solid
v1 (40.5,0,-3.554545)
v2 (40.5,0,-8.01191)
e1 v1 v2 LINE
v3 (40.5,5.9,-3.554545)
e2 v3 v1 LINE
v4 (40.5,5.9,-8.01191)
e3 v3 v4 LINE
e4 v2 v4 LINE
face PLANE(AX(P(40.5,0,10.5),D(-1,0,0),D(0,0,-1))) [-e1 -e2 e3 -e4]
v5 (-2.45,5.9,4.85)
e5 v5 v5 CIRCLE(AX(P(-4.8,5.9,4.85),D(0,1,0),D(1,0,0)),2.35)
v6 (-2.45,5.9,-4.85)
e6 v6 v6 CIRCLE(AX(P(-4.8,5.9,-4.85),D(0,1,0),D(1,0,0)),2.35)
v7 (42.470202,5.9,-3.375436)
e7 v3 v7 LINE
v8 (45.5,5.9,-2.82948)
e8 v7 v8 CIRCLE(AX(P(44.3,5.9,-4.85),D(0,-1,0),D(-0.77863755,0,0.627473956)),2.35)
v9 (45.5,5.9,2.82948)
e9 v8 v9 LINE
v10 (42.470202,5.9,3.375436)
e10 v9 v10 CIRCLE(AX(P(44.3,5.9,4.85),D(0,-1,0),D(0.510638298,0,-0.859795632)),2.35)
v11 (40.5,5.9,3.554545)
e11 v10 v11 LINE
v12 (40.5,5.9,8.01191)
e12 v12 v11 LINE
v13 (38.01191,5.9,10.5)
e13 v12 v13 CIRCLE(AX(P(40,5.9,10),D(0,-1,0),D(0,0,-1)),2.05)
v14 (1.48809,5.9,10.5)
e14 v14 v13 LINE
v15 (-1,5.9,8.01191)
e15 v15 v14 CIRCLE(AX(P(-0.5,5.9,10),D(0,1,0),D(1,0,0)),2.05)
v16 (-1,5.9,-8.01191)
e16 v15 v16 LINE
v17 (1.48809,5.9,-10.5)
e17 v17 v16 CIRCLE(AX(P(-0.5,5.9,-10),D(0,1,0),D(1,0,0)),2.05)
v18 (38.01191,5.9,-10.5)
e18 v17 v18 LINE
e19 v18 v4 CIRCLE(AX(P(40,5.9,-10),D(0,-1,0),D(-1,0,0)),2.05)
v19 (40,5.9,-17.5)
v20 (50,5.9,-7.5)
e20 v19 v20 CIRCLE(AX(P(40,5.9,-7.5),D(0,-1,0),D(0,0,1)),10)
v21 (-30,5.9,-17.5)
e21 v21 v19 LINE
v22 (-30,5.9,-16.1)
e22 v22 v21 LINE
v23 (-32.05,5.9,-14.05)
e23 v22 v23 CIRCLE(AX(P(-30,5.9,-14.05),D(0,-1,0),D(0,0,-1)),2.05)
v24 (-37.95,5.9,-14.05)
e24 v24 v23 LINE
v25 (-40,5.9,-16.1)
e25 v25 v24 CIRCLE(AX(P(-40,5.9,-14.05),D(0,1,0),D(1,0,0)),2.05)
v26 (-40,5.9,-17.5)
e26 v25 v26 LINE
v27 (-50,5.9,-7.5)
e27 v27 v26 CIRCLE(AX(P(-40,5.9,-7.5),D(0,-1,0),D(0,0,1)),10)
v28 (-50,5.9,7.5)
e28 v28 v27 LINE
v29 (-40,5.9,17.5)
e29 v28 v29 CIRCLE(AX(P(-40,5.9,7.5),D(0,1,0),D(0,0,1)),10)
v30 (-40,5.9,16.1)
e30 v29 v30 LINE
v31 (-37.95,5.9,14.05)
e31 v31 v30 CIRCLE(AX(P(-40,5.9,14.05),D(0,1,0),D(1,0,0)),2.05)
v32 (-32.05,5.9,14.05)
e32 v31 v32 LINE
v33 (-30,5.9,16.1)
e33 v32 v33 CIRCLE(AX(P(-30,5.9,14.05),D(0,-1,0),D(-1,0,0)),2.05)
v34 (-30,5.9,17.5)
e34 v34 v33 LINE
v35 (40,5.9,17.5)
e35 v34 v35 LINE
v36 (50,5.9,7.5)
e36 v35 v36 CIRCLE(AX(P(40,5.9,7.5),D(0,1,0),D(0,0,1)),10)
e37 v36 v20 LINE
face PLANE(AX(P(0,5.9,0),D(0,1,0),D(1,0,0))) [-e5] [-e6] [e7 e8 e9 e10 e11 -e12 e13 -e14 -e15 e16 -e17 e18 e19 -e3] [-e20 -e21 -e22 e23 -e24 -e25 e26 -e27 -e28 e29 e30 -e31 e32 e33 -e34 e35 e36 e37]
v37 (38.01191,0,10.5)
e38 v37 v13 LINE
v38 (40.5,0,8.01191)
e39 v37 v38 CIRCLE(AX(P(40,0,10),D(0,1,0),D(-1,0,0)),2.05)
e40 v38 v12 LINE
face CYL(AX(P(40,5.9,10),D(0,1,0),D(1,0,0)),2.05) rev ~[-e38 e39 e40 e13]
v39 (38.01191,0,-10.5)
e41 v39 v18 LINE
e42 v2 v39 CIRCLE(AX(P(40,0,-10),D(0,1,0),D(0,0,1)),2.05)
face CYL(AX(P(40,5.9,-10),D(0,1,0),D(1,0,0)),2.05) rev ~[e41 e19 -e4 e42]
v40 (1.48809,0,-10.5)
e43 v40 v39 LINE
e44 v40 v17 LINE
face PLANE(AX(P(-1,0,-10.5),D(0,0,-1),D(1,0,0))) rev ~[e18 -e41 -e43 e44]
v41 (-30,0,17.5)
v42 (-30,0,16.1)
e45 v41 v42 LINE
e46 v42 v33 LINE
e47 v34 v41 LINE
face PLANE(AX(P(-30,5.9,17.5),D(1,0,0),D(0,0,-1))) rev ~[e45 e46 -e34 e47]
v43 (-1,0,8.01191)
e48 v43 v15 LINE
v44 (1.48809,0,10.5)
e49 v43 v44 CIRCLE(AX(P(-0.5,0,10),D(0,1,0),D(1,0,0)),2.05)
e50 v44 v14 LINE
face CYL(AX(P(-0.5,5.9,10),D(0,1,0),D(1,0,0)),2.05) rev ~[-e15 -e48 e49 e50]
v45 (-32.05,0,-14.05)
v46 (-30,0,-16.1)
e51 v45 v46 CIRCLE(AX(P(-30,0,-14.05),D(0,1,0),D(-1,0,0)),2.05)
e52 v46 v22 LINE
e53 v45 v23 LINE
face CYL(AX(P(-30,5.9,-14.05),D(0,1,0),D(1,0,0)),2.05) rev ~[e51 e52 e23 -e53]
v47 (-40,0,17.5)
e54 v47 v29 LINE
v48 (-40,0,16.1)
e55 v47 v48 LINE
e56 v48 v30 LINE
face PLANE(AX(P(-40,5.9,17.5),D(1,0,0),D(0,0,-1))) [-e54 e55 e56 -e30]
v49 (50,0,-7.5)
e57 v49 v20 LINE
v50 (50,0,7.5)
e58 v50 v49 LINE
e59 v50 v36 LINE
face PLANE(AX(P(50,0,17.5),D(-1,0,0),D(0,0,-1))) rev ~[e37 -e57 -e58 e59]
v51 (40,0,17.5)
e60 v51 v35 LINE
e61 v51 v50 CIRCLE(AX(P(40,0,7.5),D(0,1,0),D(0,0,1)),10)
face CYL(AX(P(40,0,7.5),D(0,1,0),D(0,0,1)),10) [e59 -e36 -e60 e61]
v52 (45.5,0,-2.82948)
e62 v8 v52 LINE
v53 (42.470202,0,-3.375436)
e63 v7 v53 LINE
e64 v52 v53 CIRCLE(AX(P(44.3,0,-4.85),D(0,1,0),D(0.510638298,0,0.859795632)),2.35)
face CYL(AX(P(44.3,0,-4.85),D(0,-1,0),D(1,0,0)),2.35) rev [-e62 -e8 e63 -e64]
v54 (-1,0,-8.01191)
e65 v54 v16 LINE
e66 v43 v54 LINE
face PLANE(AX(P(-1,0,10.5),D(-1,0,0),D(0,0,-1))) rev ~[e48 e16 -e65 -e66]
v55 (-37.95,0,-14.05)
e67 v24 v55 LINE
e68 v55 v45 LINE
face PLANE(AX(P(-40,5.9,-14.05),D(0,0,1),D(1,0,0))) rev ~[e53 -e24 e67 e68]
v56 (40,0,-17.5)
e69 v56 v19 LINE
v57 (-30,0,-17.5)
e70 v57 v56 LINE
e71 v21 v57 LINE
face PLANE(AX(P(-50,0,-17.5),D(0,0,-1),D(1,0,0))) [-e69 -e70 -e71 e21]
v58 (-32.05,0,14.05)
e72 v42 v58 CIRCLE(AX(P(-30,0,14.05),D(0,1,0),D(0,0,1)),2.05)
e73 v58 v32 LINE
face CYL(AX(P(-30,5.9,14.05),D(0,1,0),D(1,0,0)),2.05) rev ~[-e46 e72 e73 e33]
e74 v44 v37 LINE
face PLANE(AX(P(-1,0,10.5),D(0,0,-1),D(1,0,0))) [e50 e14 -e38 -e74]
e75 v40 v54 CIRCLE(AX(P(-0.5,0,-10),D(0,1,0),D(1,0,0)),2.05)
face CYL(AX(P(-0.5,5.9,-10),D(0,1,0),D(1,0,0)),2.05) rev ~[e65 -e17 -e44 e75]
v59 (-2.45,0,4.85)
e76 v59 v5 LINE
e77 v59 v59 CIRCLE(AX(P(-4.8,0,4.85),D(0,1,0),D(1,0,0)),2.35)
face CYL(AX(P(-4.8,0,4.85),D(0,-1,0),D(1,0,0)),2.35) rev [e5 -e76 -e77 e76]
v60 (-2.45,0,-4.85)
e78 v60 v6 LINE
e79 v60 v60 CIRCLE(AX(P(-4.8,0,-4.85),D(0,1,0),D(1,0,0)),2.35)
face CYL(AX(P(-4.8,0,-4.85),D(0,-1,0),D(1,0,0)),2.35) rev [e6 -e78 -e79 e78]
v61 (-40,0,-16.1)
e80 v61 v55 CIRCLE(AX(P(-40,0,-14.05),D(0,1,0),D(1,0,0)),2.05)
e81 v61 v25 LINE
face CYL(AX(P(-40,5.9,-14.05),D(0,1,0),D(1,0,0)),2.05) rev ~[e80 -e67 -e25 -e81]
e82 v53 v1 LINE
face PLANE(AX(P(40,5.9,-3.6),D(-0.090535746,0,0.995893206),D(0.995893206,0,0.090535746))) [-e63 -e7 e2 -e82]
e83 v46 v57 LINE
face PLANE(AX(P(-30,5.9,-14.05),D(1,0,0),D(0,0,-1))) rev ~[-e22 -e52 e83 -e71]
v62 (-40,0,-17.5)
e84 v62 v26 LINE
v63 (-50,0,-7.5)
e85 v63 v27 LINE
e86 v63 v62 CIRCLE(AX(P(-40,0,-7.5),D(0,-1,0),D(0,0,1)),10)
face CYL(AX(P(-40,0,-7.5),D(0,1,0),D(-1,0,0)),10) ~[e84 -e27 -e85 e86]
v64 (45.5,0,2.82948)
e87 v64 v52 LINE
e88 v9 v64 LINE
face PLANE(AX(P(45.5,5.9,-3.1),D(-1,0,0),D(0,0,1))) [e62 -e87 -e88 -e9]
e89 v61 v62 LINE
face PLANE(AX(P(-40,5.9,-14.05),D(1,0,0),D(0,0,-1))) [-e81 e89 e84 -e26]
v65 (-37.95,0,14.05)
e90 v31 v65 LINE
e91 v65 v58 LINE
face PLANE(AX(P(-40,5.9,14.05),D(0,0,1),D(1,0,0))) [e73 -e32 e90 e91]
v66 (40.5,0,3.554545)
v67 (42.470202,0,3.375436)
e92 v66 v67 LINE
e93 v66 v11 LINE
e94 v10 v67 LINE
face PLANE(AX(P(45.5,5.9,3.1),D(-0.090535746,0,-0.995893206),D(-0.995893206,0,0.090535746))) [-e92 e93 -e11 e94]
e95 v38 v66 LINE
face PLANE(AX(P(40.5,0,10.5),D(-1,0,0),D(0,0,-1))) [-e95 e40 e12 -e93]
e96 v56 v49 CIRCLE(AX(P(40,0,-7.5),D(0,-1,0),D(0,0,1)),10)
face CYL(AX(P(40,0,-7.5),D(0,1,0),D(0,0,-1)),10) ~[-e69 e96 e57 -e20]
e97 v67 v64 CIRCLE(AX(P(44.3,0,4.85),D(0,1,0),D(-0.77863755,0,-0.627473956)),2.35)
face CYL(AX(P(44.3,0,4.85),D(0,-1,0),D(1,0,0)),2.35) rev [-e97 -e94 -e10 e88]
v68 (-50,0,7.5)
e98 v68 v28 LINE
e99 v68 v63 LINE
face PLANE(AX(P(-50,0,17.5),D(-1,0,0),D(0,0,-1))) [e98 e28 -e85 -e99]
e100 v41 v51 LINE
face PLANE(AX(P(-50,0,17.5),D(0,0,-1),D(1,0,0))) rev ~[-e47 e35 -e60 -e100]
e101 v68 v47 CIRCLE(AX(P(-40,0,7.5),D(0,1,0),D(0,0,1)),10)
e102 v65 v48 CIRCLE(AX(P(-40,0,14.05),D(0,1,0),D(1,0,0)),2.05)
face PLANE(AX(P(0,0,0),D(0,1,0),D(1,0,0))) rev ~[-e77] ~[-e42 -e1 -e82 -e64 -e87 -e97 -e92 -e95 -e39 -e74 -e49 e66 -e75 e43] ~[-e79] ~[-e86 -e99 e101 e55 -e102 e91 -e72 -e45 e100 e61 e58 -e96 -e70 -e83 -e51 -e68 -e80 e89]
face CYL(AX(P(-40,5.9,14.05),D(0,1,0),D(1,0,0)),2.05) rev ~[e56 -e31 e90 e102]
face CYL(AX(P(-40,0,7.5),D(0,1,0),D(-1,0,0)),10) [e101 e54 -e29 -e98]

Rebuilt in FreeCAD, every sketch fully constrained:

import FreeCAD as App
import Part
import Sketcher
Q = App.Units.Quantity


def edges_at(feature, points):
    """Names of the edges that pass closest to the given points."""
    edges = feature.Shape.Edges
    near = lambda p: min(range(len(edges)), key=lambda i: edges[i].distToShape(Part.Vertex(*p))[0])
    return sorted({f"Edge{near(p) + 1}" for p in points})


def add_polygon(sketch, points):
    """Adds a closed chain of lines whose ends are joined by coincident constraints."""
    first, n = sketch.GeometryCount, len(points)
    for a, b in zip(points, points[1:] + points[:1]):
        sketch.addGeometry(Part.LineSegment(App.Vector(*a, 0), App.Vector(*b, 0)), False)
    for i in range(n):
        sketch.addConstraint(Sketcher.Constraint("Coincident", first + i, 2, first + (i + 1) % n, 1))

doc = App.newDocument("Part")
body = doc.addObject("PartDesign::Body", "Body")

sketch1 = doc.addObject("Sketcher::SketchObject", "Sketch")
body.addObject(sketch1)
sketch1.AttachmentSupport = (doc.XZ_Plane, [""])
sketch1.MapMode = "FlatFace"
add_polygon(sketch1, [(-50, -17.5), (-50, 17.5), (50, 17.5), (50, -17.5)])
sketch1.addGeometry(Part.Circle(App.Vector(-4.8, 4.85, 0), App.Vector(0, 0, 1), 2.35), False)
sketch1.addGeometry(Part.Circle(App.Vector(44.3, 4.85, 0), App.Vector(0, 0, 1), 2.35), False)
sketch1.addGeometry(Part.Circle(App.Vector(-4.8, -4.85, 0), App.Vector(0, 0, 1), 2.35), False)
add_polygon(sketch1, [(40, 10), (-0.5, 10), (-0.5, -10), (40, -10)])
sketch1.addGeometry(Part.Circle(App.Vector(44.3, -4.85, 0), App.Vector(0, 0, 1), 2.35), False)
sketch1.addConstraint([
    Sketcher.Constraint("Vertical", 0),
    Sketcher.Constraint("Horizontal", 1),
    Sketcher.Constraint("Vertical", 2),
    Sketcher.Constraint("Horizontal", 3),
    Sketcher.Constraint("Horizontal", 7),
    Sketcher.Constraint("Vertical", 8),
    Sketcher.Constraint("Horizontal", 9),
    Sketcher.Constraint("Vertical", 10),
    Sketcher.Constraint("Equal", 4, 5),
    Sketcher.Constraint("Equal", 5, 6),
    Sketcher.Constraint("Equal", 6, 11),
    Sketcher.Constraint("Symmetric", 0, 2, 2, 2, -1, 1),
    Sketcher.Constraint("Symmetric", 4, 3, 6, 3, -1),
    Sketcher.Constraint("Symmetric", 5, 3, 11, 3, -1),
    Sketcher.Constraint("Horizontal", 4, 3, 5, 3),
    Sketcher.Constraint("Diameter", 4, Q("4.7 mm")),
    Sketcher.Constraint("DistanceX", 1, 1, 1, 2, Q("100 mm")),
    Sketcher.Constraint("DistanceY", 0, 1, 0, 2, Q("35 mm")),
    Sketcher.Constraint("DistanceY", 8, 2, 8, 1, Q("20 mm")),
    Sketcher.Constraint("DistanceX", 7, 2, 7, 1, Q("40.5 mm")),
    Sketcher.Constraint("DistanceY", -1, 1, 7, 2, Q("10 mm")),
    Sketcher.Constraint("DistanceX", -1, 1, 9, 2, Q("40 mm")),
    Sketcher.Constraint("DistanceX", 4, 3, -1, 1, Q("4.8 mm")),
    Sketcher.Constraint("DistanceX", -1, 1, 5, 3, Q("44.3 mm")),
    Sketcher.Constraint("DistanceY", 6, 3, 4, 3, Q("9.7 mm")),
])
pad1 = doc.addObject("PartDesign::Pad", "Pad")
body.addObject(pad1)
pad1.Profile = sketch1
pad1.Length = 5.9
pad1.Reversed = True
doc.recompute()

fillet = doc.addObject("PartDesign::Fillet", "Fillet")
body.addObject(fillet)
fillet.Base = (pad1, edges_at(pad1, [
    (50, 2.95, 17.5),
    (-50, 2.95, 17.5),
    (-50, 2.95, -17.5),
    (50, 2.95, -17.5),
]))
fillet.Radius = 10

sketch2 = doc.addObject("Sketcher::SketchObject", "Sketch001")
body.addObject(sketch2)
sketch2.AttachmentSupport = (doc.XZ_Plane, [""])
sketch2.MapMode = "FlatFace"
sketch2.AttachmentOffset = App.Placement(App.Vector(0, 0, -5.9), App.Rotation())
add_polygon(sketch2, [(-40, -17.5), (-40, -14.05), (-30, -14.05), (-30, -17.5)])
add_polygon(sketch2, [(-40, 14.05), (-40, 17.5), (-30, 17.5), (-30, 14.05)])
sketch2.addConstraint([
    Sketcher.Constraint("Vertical", 0),
    Sketcher.Constraint("Horizontal", 1),
    Sketcher.Constraint("Vertical", 2),
    Sketcher.Constraint("Horizontal", 3),
    Sketcher.Constraint("Vertical", 4),
    Sketcher.Constraint("Horizontal", 5),
    Sketcher.Constraint("Vertical", 6),
    Sketcher.Constraint("Horizontal", 7),
    Sketcher.Constraint("Symmetric", 3, 2, 4, 2, -1),
    Sketcher.Constraint("Symmetric", 1, 2, 6, 2, -1),
    Sketcher.Constraint("DistanceX", 1, 1, 1, 2, Q("10 mm")),
    Sketcher.Constraint("DistanceX", 0, 2, -1, 1, Q("40 mm")),
    Sketcher.Constraint("DistanceY", 3, 2, 4, 2, Q("35 mm")),
    Sketcher.Constraint("DistanceY", 0, 1, 0, 2, Q("3.45 mm")),
])
pocket1 = doc.addObject("PartDesign::Pocket", "Pocket")
body.addObject(pocket1)
pocket1.Profile = sketch2
pocket1.Length = 10
pocket1.Reversed = True

sketch3 = doc.addObject("Sketcher::SketchObject", "Sketch002")
body.addObject(sketch3)
sketch3.AttachmentSupport = (doc.XZ_Plane, [""])
sketch3.MapMode = "FlatFace"
sketch3.AttachmentOffset = App.Placement(App.Vector(0, 0, -5.9), App.Rotation())
sketch3.addGeometry(Part.Circle(App.Vector(-30, -14.05, 0), App.Vector(0, 0, 1), 2.05), False)
sketch3.addConstraint([
    Sketcher.Constraint("Diameter", 0, Q("4.1 mm")),
    Sketcher.Constraint("DistanceX", 0, 3, -1, 1, Q("30 mm")),
    Sketcher.Constraint("DistanceY", 0, 3, -1, 1, Q("14.05 mm")),
])
pocket2 = doc.addObject("PartDesign::Pocket", "Pocket001")
body.addObject(pocket2)
pocket2.Profile = sketch3
pocket2.Type = "UpToFirst"
pocket2.Reversed = True

sketch4 = doc.addObject("Sketcher::SketchObject", "Sketch003")
body.addObject(sketch4)
sketch4.AttachmentSupport = (doc.XZ_Plane, [""])
sketch4.MapMode = "FlatFace"
sketch4.AttachmentOffset = App.Placement(App.Vector(0, 0, -5.9), App.Rotation())
sketch4.addGeometry(Part.Circle(App.Vector(-40, -14.05, 0), App.Vector(0, 0, 1), 2.05), False)
sketch4.addConstraint([
    Sketcher.Constraint("Diameter", 0, Q("4.1 mm")),
    Sketcher.Constraint("DistanceX", 0, 3, -1, 1, Q("40 mm")),
    Sketcher.Constraint("DistanceY", 0, 3, -1, 1, Q("14.05 mm")),
])
pocket3 = doc.addObject("PartDesign::Pocket", "Pocket002")
body.addObject(pocket3)
pocket3.Profile = sketch4
pocket3.Type = "UpToFirst"
pocket3.Reversed = True

sketch5 = doc.addObject("Sketcher::SketchObject", "Sketch004")
body.addObject(sketch5)
sketch5.AttachmentSupport = (doc.XZ_Plane, [""])
sketch5.MapMode = "FlatFace"
sketch5.AttachmentOffset = App.Placement(App.Vector(0, 0, -5.9), App.Rotation())
sketch5.addGeometry(Part.Circle(App.Vector(-40, 14.05, 0), App.Vector(0, 0, 1), 2.05), False)
sketch5.addConstraint([
    Sketcher.Constraint("Diameter", 0, Q("4.1 mm")),
    Sketcher.Constraint("DistanceX", 0, 3, -1, 1, Q("40 mm")),
    Sketcher.Constraint("DistanceY", -1, 1, 0, 3, Q("14.05 mm")),
])
pocket4 = doc.addObject("PartDesign::Pocket", "Pocket003")
body.addObject(pocket4)
pocket4.Profile = sketch5
pocket4.Type = "UpToFirst"
pocket4.Reversed = True

sketch6 = doc.addObject("Sketcher::SketchObject", "Sketch005")
body.addObject(sketch6)
sketch6.AttachmentSupport = (doc.XZ_Plane, [""])
sketch6.MapMode = "FlatFace"
sketch6.AttachmentOffset = App.Placement(App.Vector(0, 0, -5.9), App.Rotation())
sketch6.addGeometry(Part.Circle(App.Vector(-30, 14.05, 0), App.Vector(0, 0, 1), 2.05), False)
sketch6.addConstraint([
    Sketcher.Constraint("Diameter", 0, Q("4.1 mm")),
    Sketcher.Constraint("DistanceX", 0, 3, -1, 1, Q("30 mm")),
    Sketcher.Constraint("DistanceY", -1, 1, 0, 3, Q("14.05 mm")),
])
pocket5 = doc.addObject("PartDesign::Pocket", "Pocket004")
body.addObject(pocket5)
pocket5.Profile = sketch6
pocket5.Type = "UpToFirst"
pocket5.Reversed = True

sketch7 = doc.addObject("Sketcher::SketchObject", "Sketch006")
body.addObject(sketch7)
sketch7.AttachmentSupport = (doc.XZ_Plane, [""])
sketch7.MapMode = "FlatFace"
sketch7.AttachmentOffset = App.Placement(App.Vector(0, 0, -5.9), App.Rotation())
sketch7.addGeometry(Part.Circle(App.Vector(-0.5, -10, 0), App.Vector(0, 0, 1), 2.05), False)
sketch7.addConstraint([
    Sketcher.Constraint("Diameter", 0, Q("4.1 mm")),
    Sketcher.Constraint("DistanceY", 0, 3, -1, 1, Q("10 mm")),
    Sketcher.Constraint("DistanceX", 0, 3, -1, 1, Q("0.5 mm")),
])
pocket6 = doc.addObject("PartDesign::Pocket", "Pocket005")
body.addObject(pocket6)
pocket6.Profile = sketch7
pocket6.Type = "UpToFirst"
pocket6.Reversed = True

sketch8 = doc.addObject("Sketcher::SketchObject", "Sketch007")
body.addObject(sketch8)
sketch8.AttachmentSupport = (doc.XZ_Plane, [""])
sketch8.MapMode = "FlatFace"
sketch8.AttachmentOffset = App.Placement(App.Vector(0, 0, -5.9), App.Rotation())
sketch8.addGeometry(Part.Circle(App.Vector(-0.5, 10, 0), App.Vector(0, 0, 1), 2.05), False)
sketch8.addConstraint([
    Sketcher.Constraint("Diameter", 0, Q("4.1 mm")),
    Sketcher.Constraint("DistanceY", -1, 1, 0, 3, Q("10 mm")),
    Sketcher.Constraint("DistanceX", 0, 3, -1, 1, Q("0.5 mm")),
])
pocket7 = doc.addObject("PartDesign::Pocket", "Pocket006")
body.addObject(pocket7)
pocket7.Profile = sketch8
pocket7.Type = "UpToFirst"
pocket7.Reversed = True

sketch9 = doc.addObject("Sketcher::SketchObject", "Sketch008")
body.addObject(sketch9)
sketch9.AttachmentSupport = (doc.XZ_Plane, [""])
sketch9.MapMode = "FlatFace"
sketch9.AttachmentOffset = App.Placement(App.Vector(0, 0, -5.9), App.Rotation())
sketch9.addGeometry(Part.Circle(App.Vector(40, 10, 0), App.Vector(0, 0, 1), 2.05), False)
sketch9.addConstraint([
    Sketcher.Constraint("Diameter", 0, Q("4.1 mm")),
    Sketcher.Constraint("DistanceX", -1, 1, 0, 3, Q("40 mm")),
    Sketcher.Constraint("DistanceY", -1, 1, 0, 3, Q("10 mm")),
])
pocket8 = doc.addObject("PartDesign::Pocket", "Pocket007")
body.addObject(pocket8)
pocket8.Profile = sketch9
pocket8.Type = "UpToFirst"
pocket8.Reversed = True

sketch10 = doc.addObject("Sketcher::SketchObject", "Sketch009")
body.addObject(sketch10)
sketch10.AttachmentSupport = (doc.XZ_Plane, [""])
sketch10.MapMode = "FlatFace"
sketch10.AttachmentOffset = App.Placement(App.Vector(0, 0, -5.9), App.Rotation())
sketch10.addGeometry(Part.Circle(App.Vector(40, -10, 0), App.Vector(0, 0, 1), 2.05), False)
sketch10.addConstraint([
    Sketcher.Constraint("Diameter", 0, Q("4.1 mm")),
    Sketcher.Constraint("DistanceX", -1, 1, 0, 3, Q("40 mm")),
    Sketcher.Constraint("DistanceY", 0, 3, -1, 1, Q("10 mm")),
])
pocket9 = doc.addObject("PartDesign::Pocket", "Pocket008")
body.addObject(pocket9)
pocket9.Profile = sketch10
pocket9.Type = "UpToFirst"
pocket9.Reversed = True

sketch11 = doc.addObject("Sketcher::SketchObject", "Sketch010")
body.addObject(sketch11)
sketch11.AttachmentSupport = (doc.XZ_Plane, [""])
sketch11.MapMode = "FlatFace"
sketch11.AttachmentOffset = App.Placement(App.Vector(0, 0, -5.9), App.Rotation())
add_polygon(sketch11, [(40, -3.6), (40, 3.6), (45.5, 3.1), (45.5, -3.1)])
sketch11.addConstraint([
    Sketcher.Constraint("Vertical", 0),
    Sketcher.Constraint("Vertical", 2),
    Sketcher.Constraint("Equal", 1, 3),
    Sketcher.Constraint("DistanceY", 0, 1, 0, 2, Q("7.2 mm")),
    Sketcher.Constraint("DistanceY", 2, 2, 2, 1, Q("6.2 mm")),
    Sketcher.Constraint("DistanceX", -1, 1, 0, 2, Q("40 mm")),
    Sketcher.Constraint("DistanceY", -1, 1, 0, 2, Q("3.6 mm")),
    Sketcher.Constraint("DistanceX", -1, 1, 1, 2, Q("45.5 mm")),
])
pocket10 = doc.addObject("PartDesign::Pocket", "Pocket009")
body.addObject(pocket10)
pocket10.Profile = sketch11
pocket10.Type = "UpToFirst"
pocket10.Reversed = True

sketch12 = doc.addObject("Sketcher::SketchObject", "Sketch011")
body.addObject(sketch12)
sketch12.AttachmentSupport = (doc.XZ_Plane, [""])
sketch12.MapMode = "FlatFace"
add_polygon(sketch12, [(-1, -10.5), (-1, 10.5), (40.5, 10.5), (40.5, -10.5)])
sketch12.addConstraint([
    Sketcher.Constraint("Vertical", 0),
    Sketcher.Constraint("Horizontal", 1),
    Sketcher.Constraint("Vertical", 2),
    Sketcher.Constraint("Horizontal", 3),
    Sketcher.Constraint("DistanceY", 0, 1, 0, 2, Q("21 mm")),
    Sketcher.Constraint("DistanceX", 1, 1, 1, 2, Q("41.5 mm")),
    Sketcher.Constraint("DistanceX", 0, 2, -1, 1, Q("1 mm")),
    Sketcher.Constraint("DistanceY", -1, 1, 0, 2, Q("10.5 mm")),
])
pocket11 = doc.addObject("PartDesign::Pocket", "Pocket010")
body.addObject(pocket11)
pocket11.Profile = sketch12
pocket11.Length = 5.9

doc.recompute()
